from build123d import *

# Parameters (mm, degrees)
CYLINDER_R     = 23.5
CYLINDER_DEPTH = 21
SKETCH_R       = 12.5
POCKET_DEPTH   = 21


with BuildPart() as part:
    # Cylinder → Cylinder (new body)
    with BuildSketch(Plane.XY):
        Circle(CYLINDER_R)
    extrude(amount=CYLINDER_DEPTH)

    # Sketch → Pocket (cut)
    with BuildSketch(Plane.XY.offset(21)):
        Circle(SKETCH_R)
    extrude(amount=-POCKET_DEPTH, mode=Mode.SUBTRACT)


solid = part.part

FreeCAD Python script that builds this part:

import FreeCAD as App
import Part
import Sketcher
from FreeCAD import Vector

doc = App.newDocument("Part")
body = doc.addObject("PartDesign::Body", "Body")

sketch1 = body.newObject("Sketcher::SketchObject", "Sketch")
sketch1.AttachmentSupport = (doc.getObject("XY_Plane"), [""])
sketch1.MapMode = "FlatFace"
sketch1.addGeometry(Part.Circle(Vector(0, 0, 0), Vector(0, 0, 1), 23.5), False)
sketch1.addConstraint([
    Sketcher.Constraint("Coincident", 0, 3, -1, 1),
    Sketcher.Constraint("Diameter", 0, 47.0),
])
pad1 = body.newObject("PartDesign::Pad", "Pad")
pad1.Profile = sketch1
pad1.Length = 21

sketch2 = body.newObject("Sketcher::SketchObject", "Sketch001")
sketch2.AttachmentSupport = (doc.getObject("XY_Plane"), [""])
sketch2.MapMode = "FlatFace"
sketch2.AttachmentOffset = App.Placement(Vector(0, 0, 21), App.Rotation())
sketch2.addGeometry(Part.Circle(Vector(0, 0, 0), Vector(0, 0, 1), 12.5), False)
sketch2.addConstraint([
    Sketcher.Constraint("Coincident", 0, 3, -1, 1),
    Sketcher.Constraint("Diameter", 0, 25.0),
])
pocket1 = body.newObject("PartDesign::Pocket", "Pocket")
pocket1.Profile = sketch2
pocket1.Length = 21

doc.recompute()
